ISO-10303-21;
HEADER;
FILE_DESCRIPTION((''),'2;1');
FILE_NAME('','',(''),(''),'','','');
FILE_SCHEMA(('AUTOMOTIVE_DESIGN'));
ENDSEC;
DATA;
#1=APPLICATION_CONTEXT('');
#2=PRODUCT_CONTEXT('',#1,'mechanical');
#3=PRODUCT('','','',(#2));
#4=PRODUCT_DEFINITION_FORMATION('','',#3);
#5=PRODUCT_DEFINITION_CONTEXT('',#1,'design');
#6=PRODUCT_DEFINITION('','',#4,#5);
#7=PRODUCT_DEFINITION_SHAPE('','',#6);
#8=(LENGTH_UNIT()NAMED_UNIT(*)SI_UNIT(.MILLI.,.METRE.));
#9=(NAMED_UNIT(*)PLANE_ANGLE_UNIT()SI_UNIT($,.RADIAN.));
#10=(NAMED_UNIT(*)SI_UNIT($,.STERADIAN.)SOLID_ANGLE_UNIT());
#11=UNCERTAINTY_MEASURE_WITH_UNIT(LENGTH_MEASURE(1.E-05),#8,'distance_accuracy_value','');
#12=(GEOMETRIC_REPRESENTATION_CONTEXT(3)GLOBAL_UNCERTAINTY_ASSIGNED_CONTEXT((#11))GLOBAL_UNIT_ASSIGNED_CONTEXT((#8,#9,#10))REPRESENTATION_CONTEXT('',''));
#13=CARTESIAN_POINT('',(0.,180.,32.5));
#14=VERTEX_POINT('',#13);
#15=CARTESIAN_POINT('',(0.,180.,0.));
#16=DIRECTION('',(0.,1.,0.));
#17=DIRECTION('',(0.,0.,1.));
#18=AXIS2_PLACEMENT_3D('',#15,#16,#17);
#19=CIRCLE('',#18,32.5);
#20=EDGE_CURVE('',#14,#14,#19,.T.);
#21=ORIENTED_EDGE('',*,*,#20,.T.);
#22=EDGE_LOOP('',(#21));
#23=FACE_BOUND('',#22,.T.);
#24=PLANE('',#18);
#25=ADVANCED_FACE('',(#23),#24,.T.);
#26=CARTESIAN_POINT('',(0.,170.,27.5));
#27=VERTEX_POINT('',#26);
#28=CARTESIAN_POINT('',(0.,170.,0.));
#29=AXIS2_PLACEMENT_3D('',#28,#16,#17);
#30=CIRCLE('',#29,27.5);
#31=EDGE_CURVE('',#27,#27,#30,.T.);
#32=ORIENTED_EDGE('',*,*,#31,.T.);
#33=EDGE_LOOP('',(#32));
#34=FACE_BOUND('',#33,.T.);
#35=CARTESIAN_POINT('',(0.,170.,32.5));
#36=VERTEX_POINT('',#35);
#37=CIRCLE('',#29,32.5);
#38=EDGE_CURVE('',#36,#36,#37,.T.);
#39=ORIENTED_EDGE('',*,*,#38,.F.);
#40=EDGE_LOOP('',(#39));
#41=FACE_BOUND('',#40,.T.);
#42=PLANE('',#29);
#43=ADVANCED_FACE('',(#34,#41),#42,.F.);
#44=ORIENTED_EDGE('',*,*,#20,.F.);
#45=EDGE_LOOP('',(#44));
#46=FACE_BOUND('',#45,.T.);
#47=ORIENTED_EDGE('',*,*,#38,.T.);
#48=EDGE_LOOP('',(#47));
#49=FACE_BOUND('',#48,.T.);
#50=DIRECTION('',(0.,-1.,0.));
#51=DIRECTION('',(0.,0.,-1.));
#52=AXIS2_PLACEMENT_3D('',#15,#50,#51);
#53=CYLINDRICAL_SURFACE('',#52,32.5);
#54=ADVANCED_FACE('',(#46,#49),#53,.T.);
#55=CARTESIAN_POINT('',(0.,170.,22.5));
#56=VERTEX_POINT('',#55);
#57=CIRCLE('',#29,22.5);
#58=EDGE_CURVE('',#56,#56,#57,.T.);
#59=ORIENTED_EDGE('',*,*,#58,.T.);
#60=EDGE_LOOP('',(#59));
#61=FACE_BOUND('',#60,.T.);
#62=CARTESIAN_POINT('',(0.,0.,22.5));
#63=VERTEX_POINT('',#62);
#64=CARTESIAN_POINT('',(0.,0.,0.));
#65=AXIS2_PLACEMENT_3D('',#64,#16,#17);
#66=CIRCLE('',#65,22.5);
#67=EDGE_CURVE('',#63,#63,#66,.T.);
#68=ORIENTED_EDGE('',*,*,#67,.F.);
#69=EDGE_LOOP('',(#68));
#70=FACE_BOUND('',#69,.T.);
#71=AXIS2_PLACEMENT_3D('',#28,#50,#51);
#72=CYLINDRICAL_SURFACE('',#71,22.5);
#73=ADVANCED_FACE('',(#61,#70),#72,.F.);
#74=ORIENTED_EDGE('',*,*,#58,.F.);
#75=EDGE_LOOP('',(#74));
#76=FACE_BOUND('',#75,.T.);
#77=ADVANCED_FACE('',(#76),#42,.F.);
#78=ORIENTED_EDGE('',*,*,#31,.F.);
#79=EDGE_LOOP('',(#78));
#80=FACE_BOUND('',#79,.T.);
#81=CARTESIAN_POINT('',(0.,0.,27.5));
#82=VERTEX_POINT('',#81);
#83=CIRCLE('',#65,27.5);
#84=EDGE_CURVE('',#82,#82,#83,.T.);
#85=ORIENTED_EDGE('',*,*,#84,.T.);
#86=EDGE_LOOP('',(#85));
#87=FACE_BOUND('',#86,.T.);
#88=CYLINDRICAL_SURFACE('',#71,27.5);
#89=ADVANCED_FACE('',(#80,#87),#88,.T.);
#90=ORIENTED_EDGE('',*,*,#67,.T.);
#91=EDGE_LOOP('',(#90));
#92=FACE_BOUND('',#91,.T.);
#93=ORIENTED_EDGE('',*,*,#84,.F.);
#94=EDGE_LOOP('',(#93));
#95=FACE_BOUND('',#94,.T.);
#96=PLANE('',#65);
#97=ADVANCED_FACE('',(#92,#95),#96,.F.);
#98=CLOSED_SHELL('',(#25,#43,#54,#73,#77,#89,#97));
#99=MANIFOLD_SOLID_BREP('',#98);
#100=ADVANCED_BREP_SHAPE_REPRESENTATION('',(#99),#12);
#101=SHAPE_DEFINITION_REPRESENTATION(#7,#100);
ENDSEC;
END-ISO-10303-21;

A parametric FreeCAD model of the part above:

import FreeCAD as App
import Part
import Sketcher

doc = App.newDocument("Part")
body = doc.addObject("PartDesign::Body", "Body")

# Sketch on XZ plane
sketch1 = body.newObject("Sketcher::SketchObject", "Sketch")
sketch1.AttachmentSupport = (doc.getObject("XZ_Plane"), [""])
sketch1.MapMode = "FlatFace"
sketch1.addGeometry([
    Part.Circle(App.Vector(0, 0, 0), App.Vector(0, 0, 1), 28),
    Part.Circle(App.Vector(0, 0, 0), App.Vector(0, 0, 1), 22),
], False)
sketch1.addConstraint([
    Sketcher.Constraint("Coincident", 0, 3, -1, 1),
    Sketcher.Constraint("Coincident", 1, 3, -1, 1),
    Sketcher.Constraint("Diameter", 0, 55.0),
    Sketcher.Constraint("Diameter", 1, 45.0),
])
pad1 = body.newObject("PartDesign::Pad", "Pad")
pad1.Profile = sketch1
pad1.Length = 170
pad1.Reversed = True

# Sketch on XZ plane
sketch2 = body.newObject("Sketcher::SketchObject", "Sketch001")
sketch2.AttachmentSupport = (doc.getObject("XZ_Plane"), [""])
sketch2.MapMode = "FlatFace"
sketch2.AttachmentOffset = App.Placement(App.Vector(0, 0, -170), App.Rotation())
sketch2.addGeometry(Part.Circle(App.Vector(0, 0, 0), App.Vector(0, 0, 1), 32), False)
sketch2.addConstraint([
    Sketcher.Constraint("Coincident", 0, 3, -1, 1),
    Sketcher.Constraint("Diameter", 0, 65.0),
])
pad2 = body.newObject("PartDesign::Pad", "Pad001")
pad2.Profile = sketch2
pad2.Length = 10
pad2.Reversed = True

doc.recompute()
